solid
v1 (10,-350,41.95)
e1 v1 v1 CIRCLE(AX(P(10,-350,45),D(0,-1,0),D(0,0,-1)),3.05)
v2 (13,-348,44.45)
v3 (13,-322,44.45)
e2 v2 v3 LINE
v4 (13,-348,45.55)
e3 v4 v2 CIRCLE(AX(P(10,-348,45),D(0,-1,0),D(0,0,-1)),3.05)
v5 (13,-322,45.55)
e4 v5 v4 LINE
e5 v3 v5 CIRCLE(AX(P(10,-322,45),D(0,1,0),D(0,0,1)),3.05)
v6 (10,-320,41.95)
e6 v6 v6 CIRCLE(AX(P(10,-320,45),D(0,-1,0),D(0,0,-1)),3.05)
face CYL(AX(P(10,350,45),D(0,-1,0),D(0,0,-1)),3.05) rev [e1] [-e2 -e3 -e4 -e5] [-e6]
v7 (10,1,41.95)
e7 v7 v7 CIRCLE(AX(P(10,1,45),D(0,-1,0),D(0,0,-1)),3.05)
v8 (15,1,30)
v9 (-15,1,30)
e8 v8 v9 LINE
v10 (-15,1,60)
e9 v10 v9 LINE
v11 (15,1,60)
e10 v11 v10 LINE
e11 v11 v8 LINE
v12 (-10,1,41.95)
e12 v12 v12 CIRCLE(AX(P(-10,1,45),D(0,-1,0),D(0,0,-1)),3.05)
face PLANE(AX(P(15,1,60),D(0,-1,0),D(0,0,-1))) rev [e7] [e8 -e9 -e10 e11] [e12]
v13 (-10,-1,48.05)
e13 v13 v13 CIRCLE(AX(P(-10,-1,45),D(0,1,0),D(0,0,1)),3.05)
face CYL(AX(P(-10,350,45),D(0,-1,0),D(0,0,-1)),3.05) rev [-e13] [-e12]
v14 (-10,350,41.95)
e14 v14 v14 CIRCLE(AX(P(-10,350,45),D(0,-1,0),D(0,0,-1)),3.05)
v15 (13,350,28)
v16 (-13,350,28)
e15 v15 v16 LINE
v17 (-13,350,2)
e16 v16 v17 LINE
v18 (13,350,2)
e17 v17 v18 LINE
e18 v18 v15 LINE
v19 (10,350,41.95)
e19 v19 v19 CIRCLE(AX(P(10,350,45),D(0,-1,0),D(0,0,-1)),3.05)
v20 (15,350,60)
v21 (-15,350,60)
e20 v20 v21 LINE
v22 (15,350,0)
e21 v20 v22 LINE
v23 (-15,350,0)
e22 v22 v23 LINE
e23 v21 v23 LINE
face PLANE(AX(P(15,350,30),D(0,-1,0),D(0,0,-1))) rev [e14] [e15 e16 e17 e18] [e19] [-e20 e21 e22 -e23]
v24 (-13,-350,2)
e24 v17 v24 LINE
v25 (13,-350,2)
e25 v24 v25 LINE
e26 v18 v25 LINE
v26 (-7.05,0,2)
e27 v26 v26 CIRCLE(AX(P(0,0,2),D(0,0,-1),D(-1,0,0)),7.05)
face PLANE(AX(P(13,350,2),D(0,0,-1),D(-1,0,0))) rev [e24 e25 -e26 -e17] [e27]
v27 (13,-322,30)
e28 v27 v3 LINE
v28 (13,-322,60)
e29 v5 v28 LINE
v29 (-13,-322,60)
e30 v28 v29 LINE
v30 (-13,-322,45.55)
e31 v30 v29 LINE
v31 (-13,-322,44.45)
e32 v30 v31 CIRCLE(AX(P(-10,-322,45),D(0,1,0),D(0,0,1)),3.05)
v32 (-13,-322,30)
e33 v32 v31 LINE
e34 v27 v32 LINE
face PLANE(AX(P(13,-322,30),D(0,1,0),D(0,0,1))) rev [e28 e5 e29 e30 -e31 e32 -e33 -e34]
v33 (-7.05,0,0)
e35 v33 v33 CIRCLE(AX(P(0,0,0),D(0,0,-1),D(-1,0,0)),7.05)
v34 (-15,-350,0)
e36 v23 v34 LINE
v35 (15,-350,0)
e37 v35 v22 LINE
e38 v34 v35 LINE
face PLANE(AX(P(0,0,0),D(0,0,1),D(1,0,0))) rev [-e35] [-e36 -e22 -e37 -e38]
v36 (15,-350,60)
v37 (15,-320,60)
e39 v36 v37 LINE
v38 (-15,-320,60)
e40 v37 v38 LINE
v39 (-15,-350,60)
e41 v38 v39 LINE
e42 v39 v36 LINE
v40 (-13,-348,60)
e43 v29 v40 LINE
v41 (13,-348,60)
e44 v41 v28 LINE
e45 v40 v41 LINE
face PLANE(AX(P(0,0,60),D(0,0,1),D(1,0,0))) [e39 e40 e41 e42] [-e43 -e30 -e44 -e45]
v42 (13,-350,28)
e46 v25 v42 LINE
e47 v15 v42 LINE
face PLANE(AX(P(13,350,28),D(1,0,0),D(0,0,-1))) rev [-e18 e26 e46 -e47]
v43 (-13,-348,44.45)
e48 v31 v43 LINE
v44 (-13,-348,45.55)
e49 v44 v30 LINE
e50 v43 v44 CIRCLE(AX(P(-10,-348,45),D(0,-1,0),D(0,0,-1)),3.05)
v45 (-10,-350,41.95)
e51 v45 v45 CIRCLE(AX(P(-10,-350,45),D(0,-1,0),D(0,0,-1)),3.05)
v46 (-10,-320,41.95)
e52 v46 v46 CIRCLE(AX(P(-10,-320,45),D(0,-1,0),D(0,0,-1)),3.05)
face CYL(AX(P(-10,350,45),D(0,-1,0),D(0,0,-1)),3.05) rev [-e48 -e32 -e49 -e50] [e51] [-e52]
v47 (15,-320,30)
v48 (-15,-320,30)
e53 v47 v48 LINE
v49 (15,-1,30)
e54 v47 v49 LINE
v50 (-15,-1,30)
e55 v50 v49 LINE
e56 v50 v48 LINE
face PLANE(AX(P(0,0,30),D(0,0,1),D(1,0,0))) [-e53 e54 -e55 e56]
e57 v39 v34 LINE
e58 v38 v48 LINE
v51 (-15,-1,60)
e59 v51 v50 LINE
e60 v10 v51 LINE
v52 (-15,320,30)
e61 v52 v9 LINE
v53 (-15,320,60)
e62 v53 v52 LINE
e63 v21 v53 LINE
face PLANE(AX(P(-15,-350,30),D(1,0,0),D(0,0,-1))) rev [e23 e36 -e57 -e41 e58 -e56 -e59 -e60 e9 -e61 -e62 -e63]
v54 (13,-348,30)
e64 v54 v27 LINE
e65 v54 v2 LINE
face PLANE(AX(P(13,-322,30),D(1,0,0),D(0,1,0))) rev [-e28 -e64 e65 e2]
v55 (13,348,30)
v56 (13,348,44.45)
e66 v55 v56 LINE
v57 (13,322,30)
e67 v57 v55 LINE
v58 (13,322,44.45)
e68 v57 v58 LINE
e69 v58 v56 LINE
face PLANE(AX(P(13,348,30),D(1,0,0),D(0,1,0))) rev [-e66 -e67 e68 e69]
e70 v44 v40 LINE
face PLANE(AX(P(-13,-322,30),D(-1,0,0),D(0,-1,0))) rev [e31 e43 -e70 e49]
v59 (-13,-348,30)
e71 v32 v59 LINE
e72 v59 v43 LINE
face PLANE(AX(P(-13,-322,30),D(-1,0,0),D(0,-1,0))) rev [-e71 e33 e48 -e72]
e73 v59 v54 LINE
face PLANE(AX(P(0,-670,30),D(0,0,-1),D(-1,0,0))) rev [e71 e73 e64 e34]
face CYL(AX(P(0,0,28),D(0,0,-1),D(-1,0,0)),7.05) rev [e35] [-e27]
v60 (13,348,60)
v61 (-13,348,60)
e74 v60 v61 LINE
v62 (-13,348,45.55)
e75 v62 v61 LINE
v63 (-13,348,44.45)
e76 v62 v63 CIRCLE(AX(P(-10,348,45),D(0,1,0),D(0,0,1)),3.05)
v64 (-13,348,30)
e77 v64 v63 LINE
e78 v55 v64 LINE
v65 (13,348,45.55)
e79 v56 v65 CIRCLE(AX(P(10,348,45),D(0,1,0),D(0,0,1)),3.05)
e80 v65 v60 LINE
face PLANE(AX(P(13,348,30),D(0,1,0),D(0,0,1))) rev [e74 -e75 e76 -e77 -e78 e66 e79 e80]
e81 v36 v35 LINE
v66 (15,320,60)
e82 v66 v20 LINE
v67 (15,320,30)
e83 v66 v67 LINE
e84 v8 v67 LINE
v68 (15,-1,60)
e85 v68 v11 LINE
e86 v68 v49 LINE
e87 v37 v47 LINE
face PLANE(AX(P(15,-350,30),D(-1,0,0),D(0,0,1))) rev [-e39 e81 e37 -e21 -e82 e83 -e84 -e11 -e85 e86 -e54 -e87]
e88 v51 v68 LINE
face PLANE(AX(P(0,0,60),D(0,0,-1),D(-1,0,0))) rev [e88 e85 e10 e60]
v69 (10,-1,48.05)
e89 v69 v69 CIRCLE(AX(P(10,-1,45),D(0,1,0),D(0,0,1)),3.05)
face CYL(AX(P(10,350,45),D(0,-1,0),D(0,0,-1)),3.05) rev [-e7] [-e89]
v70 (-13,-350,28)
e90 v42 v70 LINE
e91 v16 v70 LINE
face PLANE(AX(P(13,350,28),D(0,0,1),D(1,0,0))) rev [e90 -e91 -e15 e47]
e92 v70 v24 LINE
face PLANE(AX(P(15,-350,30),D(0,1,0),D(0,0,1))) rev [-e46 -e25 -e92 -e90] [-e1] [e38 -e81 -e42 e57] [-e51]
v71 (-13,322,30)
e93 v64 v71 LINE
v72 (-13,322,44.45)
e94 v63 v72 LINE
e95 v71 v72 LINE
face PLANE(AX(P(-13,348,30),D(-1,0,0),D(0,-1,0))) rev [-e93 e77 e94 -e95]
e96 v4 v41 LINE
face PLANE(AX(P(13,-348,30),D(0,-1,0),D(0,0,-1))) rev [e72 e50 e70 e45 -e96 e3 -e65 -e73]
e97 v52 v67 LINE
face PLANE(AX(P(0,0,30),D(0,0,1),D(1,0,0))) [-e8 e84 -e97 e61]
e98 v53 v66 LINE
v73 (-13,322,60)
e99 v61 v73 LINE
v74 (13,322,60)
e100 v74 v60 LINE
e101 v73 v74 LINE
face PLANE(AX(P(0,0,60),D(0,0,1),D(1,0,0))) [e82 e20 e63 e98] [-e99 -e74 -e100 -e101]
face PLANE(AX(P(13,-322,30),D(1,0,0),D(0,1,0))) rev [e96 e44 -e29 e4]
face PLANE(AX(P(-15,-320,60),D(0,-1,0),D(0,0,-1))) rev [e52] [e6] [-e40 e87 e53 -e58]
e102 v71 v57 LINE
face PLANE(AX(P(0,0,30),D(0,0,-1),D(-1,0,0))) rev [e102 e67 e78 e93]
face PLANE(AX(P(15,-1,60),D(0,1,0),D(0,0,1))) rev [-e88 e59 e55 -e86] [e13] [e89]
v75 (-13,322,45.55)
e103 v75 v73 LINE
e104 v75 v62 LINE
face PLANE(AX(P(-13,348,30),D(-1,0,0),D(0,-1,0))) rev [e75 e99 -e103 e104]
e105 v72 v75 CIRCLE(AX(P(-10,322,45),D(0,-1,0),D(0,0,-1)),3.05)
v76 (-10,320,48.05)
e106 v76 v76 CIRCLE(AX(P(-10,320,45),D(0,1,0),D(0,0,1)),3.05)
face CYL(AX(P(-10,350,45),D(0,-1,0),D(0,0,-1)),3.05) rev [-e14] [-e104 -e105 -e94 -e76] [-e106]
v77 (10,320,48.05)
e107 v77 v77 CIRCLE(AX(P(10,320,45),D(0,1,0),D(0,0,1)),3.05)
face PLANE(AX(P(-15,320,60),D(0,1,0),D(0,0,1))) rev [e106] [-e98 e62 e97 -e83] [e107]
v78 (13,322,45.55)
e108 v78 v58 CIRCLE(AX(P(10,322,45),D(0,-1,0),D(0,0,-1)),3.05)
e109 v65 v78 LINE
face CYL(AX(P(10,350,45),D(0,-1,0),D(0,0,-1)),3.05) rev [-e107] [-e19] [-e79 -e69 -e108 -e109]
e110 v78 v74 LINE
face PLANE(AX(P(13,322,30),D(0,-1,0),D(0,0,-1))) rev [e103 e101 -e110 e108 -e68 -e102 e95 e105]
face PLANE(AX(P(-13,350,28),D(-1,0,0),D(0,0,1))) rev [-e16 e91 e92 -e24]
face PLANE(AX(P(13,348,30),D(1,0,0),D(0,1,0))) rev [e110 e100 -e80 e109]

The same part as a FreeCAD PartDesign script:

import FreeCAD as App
import Part
import Sketcher

V = App.Vector

doc = App.newDocument("Part")
params = doc.addObject("Spreadsheet::Sheet", "Params")
for row, (alias, value) in enumerate([
    ("sketch1_width", "30 mm"),
    ("sketch1_height", "700 mm"),
    ("pad1_length", "30 mm"),
    ("sketch2_width", "30 mm"),
    ("sketch2_height", "2 mm"),
    ("pad2_length", "30 mm"),
    ("sketch3_width", "26 mm"),
    ("pocket1_length", "30 mm"),
    ("linearpattern_pitch", "670 mm"),
    ("sketch4_width", "26 mm"),
    ("sketch5_diameter", "6.1 mm"),
    ("sketch6_diameter", "14.1 mm"),
    ("pocket4_length", "28 mm"),
], start=1):
    params.set(f"A{row}", alias)
    params.set(f"B{row}", "=" + value)
    params.setAlias(f"B{row}", alias)

body = doc.addObject("PartDesign::Body", "Body")

# Sketch on XY plane
sketch1 = body.newObject("Sketcher::SketchObject", "Sketch")
sketch1.AttachmentSupport = (doc.getObject("XY_Plane"), [""])
sketch1.MapMode = "FlatFace"
sketch1.addGeometry([
    Part.LineSegment(V(-15, 350, 0), V(-15, -350, 0)),
    Part.LineSegment(V(-15, -350, 0), V(15, -350, 0)),
    Part.LineSegment(V(15, -350, 0), V(15, 350, 0)),
    Part.LineSegment(V(15, 350, 0), V(-15, 350, 0)),
], False)
sketch1.addConstraint([
    Sketcher.Constraint("Coincident", 0, 2, 1, 1),
    Sketcher.Constraint("Coincident", 1, 2, 2, 1),
    Sketcher.Constraint("Coincident", 2, 2, 3, 1),
    Sketcher.Constraint("Coincident", 3, 2, 0, 1),
    Sketcher.Constraint("Vertical", 0),
    Sketcher.Constraint("Horizontal", 1),
    Sketcher.Constraint("Vertical", 2),
    Sketcher.Constraint("Horizontal", 3),
    Sketcher.Constraint("Symmetric", 0, 2, 2, 2, -1, 1),
    Sketcher.Constraint("DistanceX", 1, 1, 1, 2, 30.0),
    Sketcher.Constraint("DistanceY", 0, 2, 0, 1, 700.0),
])
sketch1.setExpression("Constraints[9]", "Params.sketch1_width")
sketch1.setExpression("Constraints[10]", "Params.sketch1_height")
pad1 = body.newObject("PartDesign::Pad", "Pad")
pad1.Profile = sketch1
pad1.setExpression("Length", "Params.pad1_length")

# Sketch on XY plane
sketch2 = body.newObject("Sketcher::SketchObject", "Sketch001")
sketch2.AttachmentSupport = (doc.getObject("XY_Plane"), [""])
sketch2.MapMode = "FlatFace"
sketch2.AttachmentOffset = App.Placement(V(0, 0, 30), App.Rotation())
sketch2.addGeometry([
    Part.LineSegment(V(-15, 350, 0), V(-15, 320, 0)),  # 0
    Part.LineSegment(V(-15, 320, 0), V(15, 320, 0)),  # 1
    Part.LineSegment(V(15, 320, 0), V(15, 350, 0)),  # 2
    Part.LineSegment(V(15, 350, 0), V(-15, 350, 0)),  # 3
    Part.LineSegment(V(-15, -320, 0), V(-15, -350, 0)),  # 4
    Part.LineSegment(V(-15, -350, 0), V(15, -350, 0)),  # 5
    Part.LineSegment(V(15, -350, 0), V(15, -320, 0)),  # 6
    Part.LineSegment(V(15, -320, 0), V(-15, -320, 0)),  # 7
    Part.LineSegment(V(-15, 1, 0), V(-15, -1, 0)),  # 8
    Part.LineSegment(V(-15, -1, 0), V(15, -1, 0)),  # 9
    Part.LineSegment(V(15, -1, 0), V(15, 1, 0)),  # 10
    Part.LineSegment(V(15, 1, 0), V(-15, 1, 0)),  # 11
], False)
sketch2.addConstraint([
    Sketcher.Constraint("Coincident", 0, 2, 1, 1),
    Sketcher.Constraint("Coincident", 1, 2, 2, 1),
    Sketcher.Constraint("Coincident", 2, 2, 3, 1),
    Sketcher.Constraint("Coincident", 3, 2, 0, 1),
    Sketcher.Constraint("Coincident", 4, 2, 5, 1),
    Sketcher.Constraint("Coincident", 5, 2, 6, 1),
    Sketcher.Constraint("Coincident", 6, 2, 7, 1),
    Sketcher.Constraint("Coincident", 7, 2, 4, 1),
    Sketcher.Constraint("Coincident", 8, 2, 9, 1),
    Sketcher.Constraint("Coincident", 9, 2, 10, 1),
    Sketcher.Constraint("Coincident", 10, 2, 11, 1),
    Sketcher.Constraint("Coincident", 11, 2, 8, 1),
    Sketcher.Constraint("Vertical", 0),
    Sketcher.Constraint("Horizontal", 1),
    Sketcher.Constraint("Vertical", 2),
    Sketcher.Constraint("Horizontal", 3),
    Sketcher.Constraint("Vertical", 4),
    Sketcher.Constraint("Horizontal", 5),
    Sketcher.Constraint("Vertical", 6),
    Sketcher.Constraint("Horizontal", 7),
    Sketcher.Constraint("Vertical", 8),
    Sketcher.Constraint("Horizontal", 9),
    Sketcher.Constraint("Vertical", 10),
    Sketcher.Constraint("Horizontal", 11),
    Sketcher.Constraint("Symmetric", 2, 2, 4, 2, -1, 1),
    Sketcher.Constraint("Symmetric", 0, 2, 6, 2, -1, 1),
    Sketcher.Constraint("Symmetric", 8, 2, 10, 2, -1, 1),
    Sketcher.Constraint("Vertical", 3, 2, 4, 2),
    Sketcher.Constraint("Vertical", 7, 2, 8, 2),
    Sketcher.Constraint("Equal", 11, 0),
    Sketcher.Constraint("DistanceX", 1, 1, 1, 2, 30.0),
    Sketcher.Constraint("DistanceY", 8, 2, 8, 1, 2.0),
    Sketcher.Constraint("DistanceY", -1, 1, 0, 2, 320.0),
])
sketch2.setExpression("Constraints[30]", "Params.sketch2_width")
sketch2.setExpression("Constraints[31]", "Params.sketch2_height")
pad2 = body.newObject("PartDesign::Pad", "Pad001")
pad2.Profile = sketch2
pad2.setExpression("Length", "Params.pad2_length")

# Sketch on XY plane
sketch3 = body.newObject("Sketcher::SketchObject", "Sketch002")
sketch3.AttachmentSupport = (doc.getObject("XY_Plane"), [""])
sketch3.MapMode = "FlatFace"
sketch3.AttachmentOffset = App.Placement(V(0, 0, 60), App.Rotation())
sketch3.addGeometry([
    Part.LineSegment(V(-13, 348, 0), V(-13, 322, 0)),
    Part.LineSegment(V(-13, 322, 0), V(13, 322, 0)),
    Part.LineSegment(V(13, 322, 0), V(13, 348, 0)),
    Part.LineSegment(V(13, 348, 0), V(-13, 348, 0)),
], False)
sketch3.addConstraint([
    Sketcher.Constraint("Coincident", 0, 2, 1, 1),
    Sketcher.Constraint("Coincident", 1, 2, 2, 1),
    Sketcher.Constraint("Coincident", 2, 2, 3, 1),
    Sketcher.Constraint("Coincident", 3, 2, 0, 1),
    Sketcher.Constraint("Vertical", 0),
    Sketcher.Constraint("Horizontal", 1),
    Sketcher.Constraint("Vertical", 2),
    Sketcher.Constraint("Horizontal", 3),
    Sketcher.Constraint("Equal", 3, 0),
    Sketcher.Constraint("DistanceX", 1, 1, 1, 2, 26.0),
    Sketcher.Constraint("DistanceX", 0, 2, -1, 1, 13.0),
    Sketcher.Constraint("DistanceY", -1, 1, 0, 2, 322.0),
])
sketch3.setExpression("Constraints[9]", "Params.sketch3_width")
pocket1 = body.newObject("PartDesign::Pocket", "Pocket")
pocket1.Profile = sketch3
pocket1.setExpression("Length", "Params.pocket1_length")
doc.recompute()

linearpattern = body.newObject("PartDesign::LinearPattern", "LinearPattern")
linearpattern.Originals = [pocket1]
linearpattern.Direction = (doc.getObject("Y_Axis"), [""])
linearpattern.Mode = "offset"
linearpattern.setExpression("Offset", "Params.linearpattern_pitch")
linearpattern.Occurrences = 3
linearpattern.Reversed = True
body.Tip = linearpattern

# Sketch on XZ plane
sketch4 = body.newObject("Sketcher::SketchObject", "Sketch003")
sketch4.AttachmentSupport = (doc.getObject("XZ_Plane"), [""])
sketch4.MapMode = "FlatFace"
sketch4.AttachmentOffset = App.Placement(V(0, 0, 350), App.Rotation())
sketch4.addGeometry([
    Part.LineSegment(V(13, 2, 0), V(13, 28, 0)),
    Part.LineSegment(V(13, 28, 0), V(-13, 28, 0)),
    Part.LineSegment(V(-13, 28, 0), V(-13, 2, 0)),
    Part.LineSegment(V(-13, 2, 0), V(13, 2, 0)),
], False)
sketch4.addConstraint([
    Sketcher.Constraint("Coincident", 0, 2, 1, 1),
    Sketcher.Constraint("Coincident", 1, 2, 2, 1),
    Sketcher.Constraint("Coincident", 2, 2, 3, 1),
    Sketcher.Constraint("Coincident", 3, 2, 0, 1),
    Sketcher.Constraint("Vertical", 0),
    Sketcher.Constraint("Horizontal", 1),
    Sketcher.Constraint("Vertical", 2),
    Sketcher.Constraint("Horizontal", 3),
    Sketcher.Constraint("Equal", 3, 0),
    Sketcher.Constraint("DistanceX", 1, 2, 1, 1, 26.0),
    Sketcher.Constraint("DistanceX", -1, 1, 0, 2, 13.0),
    Sketcher.Constraint("DistanceY", -1, 1, 0, 2, 28.0),
])
sketch4.setExpression("Constraints[9]", "Params.sketch4_width")
pocket2 = body.newObject("PartDesign::Pocket", "Pocket001")
pocket2.Profile = sketch4
pocket2.Type = "ThroughAll"

# Sketch on XZ plane
sketch5 = body.newObject("Sketcher::SketchObject", "Sketch004")
sketch5.AttachmentSupport = (doc.getObject("XZ_Plane"), [""])
sketch5.MapMode = "FlatFace"
sketch5.AttachmentOffset = App.Placement(V(0, 0, 350), App.Rotation())
sketch5.addGeometry([
    Part.Circle(V(-10, 45, 0), V(0, 0, 1), 3),
    Part.Circle(V(10, 45, 0), V(0, 0, 1), 3),
], False)
sketch5.addConstraint([
    Sketcher.Constraint("Equal", 0, 1),
    Sketcher.Constraint("Symmetric", 0, 3, 1, 3, -2),
    Sketcher.Constraint("Diameter", 0, 6.1),
    Sketcher.Constraint("DistanceX", 0, 3, -1, 1, 10.0),
    Sketcher.Constraint("DistanceY", -1, 1, 0, 3, 45.0),
])
sketch5.setExpression("Constraints[2]", "Params.sketch5_diameter")
pocket3 = body.newObject("PartDesign::Pocket", "Pocket002")
pocket3.Profile = sketch5
pocket3.Type = "ThroughAll"

# Sketch on XY plane
sketch6 = body.newObject("Sketcher::SketchObject", "Sketch005")
sketch6.AttachmentSupport = (doc.getObject("XY_Plane"), [""])
sketch6.MapMode = "FlatFace"
sketch6.addGeometry(Part.Circle(V(0, 0, 0), V(0, 0, 1), 7), False)
sketch6.addConstraint([
    Sketcher.Constraint("Coincident", 0, 3, -1, 1),
    Sketcher.Constraint("Diameter", 0, 14.1),
])
sketch6.setExpression("Constraints[1]", "Params.sketch6_diameter")
pocket4 = body.newObject("PartDesign::Pocket", "Pocket003")
pocket4.Profile = sketch6
pocket4.setExpression("Length", "Params.pocket4_length")
pocket4.Reversed = True

doc.recompute()
